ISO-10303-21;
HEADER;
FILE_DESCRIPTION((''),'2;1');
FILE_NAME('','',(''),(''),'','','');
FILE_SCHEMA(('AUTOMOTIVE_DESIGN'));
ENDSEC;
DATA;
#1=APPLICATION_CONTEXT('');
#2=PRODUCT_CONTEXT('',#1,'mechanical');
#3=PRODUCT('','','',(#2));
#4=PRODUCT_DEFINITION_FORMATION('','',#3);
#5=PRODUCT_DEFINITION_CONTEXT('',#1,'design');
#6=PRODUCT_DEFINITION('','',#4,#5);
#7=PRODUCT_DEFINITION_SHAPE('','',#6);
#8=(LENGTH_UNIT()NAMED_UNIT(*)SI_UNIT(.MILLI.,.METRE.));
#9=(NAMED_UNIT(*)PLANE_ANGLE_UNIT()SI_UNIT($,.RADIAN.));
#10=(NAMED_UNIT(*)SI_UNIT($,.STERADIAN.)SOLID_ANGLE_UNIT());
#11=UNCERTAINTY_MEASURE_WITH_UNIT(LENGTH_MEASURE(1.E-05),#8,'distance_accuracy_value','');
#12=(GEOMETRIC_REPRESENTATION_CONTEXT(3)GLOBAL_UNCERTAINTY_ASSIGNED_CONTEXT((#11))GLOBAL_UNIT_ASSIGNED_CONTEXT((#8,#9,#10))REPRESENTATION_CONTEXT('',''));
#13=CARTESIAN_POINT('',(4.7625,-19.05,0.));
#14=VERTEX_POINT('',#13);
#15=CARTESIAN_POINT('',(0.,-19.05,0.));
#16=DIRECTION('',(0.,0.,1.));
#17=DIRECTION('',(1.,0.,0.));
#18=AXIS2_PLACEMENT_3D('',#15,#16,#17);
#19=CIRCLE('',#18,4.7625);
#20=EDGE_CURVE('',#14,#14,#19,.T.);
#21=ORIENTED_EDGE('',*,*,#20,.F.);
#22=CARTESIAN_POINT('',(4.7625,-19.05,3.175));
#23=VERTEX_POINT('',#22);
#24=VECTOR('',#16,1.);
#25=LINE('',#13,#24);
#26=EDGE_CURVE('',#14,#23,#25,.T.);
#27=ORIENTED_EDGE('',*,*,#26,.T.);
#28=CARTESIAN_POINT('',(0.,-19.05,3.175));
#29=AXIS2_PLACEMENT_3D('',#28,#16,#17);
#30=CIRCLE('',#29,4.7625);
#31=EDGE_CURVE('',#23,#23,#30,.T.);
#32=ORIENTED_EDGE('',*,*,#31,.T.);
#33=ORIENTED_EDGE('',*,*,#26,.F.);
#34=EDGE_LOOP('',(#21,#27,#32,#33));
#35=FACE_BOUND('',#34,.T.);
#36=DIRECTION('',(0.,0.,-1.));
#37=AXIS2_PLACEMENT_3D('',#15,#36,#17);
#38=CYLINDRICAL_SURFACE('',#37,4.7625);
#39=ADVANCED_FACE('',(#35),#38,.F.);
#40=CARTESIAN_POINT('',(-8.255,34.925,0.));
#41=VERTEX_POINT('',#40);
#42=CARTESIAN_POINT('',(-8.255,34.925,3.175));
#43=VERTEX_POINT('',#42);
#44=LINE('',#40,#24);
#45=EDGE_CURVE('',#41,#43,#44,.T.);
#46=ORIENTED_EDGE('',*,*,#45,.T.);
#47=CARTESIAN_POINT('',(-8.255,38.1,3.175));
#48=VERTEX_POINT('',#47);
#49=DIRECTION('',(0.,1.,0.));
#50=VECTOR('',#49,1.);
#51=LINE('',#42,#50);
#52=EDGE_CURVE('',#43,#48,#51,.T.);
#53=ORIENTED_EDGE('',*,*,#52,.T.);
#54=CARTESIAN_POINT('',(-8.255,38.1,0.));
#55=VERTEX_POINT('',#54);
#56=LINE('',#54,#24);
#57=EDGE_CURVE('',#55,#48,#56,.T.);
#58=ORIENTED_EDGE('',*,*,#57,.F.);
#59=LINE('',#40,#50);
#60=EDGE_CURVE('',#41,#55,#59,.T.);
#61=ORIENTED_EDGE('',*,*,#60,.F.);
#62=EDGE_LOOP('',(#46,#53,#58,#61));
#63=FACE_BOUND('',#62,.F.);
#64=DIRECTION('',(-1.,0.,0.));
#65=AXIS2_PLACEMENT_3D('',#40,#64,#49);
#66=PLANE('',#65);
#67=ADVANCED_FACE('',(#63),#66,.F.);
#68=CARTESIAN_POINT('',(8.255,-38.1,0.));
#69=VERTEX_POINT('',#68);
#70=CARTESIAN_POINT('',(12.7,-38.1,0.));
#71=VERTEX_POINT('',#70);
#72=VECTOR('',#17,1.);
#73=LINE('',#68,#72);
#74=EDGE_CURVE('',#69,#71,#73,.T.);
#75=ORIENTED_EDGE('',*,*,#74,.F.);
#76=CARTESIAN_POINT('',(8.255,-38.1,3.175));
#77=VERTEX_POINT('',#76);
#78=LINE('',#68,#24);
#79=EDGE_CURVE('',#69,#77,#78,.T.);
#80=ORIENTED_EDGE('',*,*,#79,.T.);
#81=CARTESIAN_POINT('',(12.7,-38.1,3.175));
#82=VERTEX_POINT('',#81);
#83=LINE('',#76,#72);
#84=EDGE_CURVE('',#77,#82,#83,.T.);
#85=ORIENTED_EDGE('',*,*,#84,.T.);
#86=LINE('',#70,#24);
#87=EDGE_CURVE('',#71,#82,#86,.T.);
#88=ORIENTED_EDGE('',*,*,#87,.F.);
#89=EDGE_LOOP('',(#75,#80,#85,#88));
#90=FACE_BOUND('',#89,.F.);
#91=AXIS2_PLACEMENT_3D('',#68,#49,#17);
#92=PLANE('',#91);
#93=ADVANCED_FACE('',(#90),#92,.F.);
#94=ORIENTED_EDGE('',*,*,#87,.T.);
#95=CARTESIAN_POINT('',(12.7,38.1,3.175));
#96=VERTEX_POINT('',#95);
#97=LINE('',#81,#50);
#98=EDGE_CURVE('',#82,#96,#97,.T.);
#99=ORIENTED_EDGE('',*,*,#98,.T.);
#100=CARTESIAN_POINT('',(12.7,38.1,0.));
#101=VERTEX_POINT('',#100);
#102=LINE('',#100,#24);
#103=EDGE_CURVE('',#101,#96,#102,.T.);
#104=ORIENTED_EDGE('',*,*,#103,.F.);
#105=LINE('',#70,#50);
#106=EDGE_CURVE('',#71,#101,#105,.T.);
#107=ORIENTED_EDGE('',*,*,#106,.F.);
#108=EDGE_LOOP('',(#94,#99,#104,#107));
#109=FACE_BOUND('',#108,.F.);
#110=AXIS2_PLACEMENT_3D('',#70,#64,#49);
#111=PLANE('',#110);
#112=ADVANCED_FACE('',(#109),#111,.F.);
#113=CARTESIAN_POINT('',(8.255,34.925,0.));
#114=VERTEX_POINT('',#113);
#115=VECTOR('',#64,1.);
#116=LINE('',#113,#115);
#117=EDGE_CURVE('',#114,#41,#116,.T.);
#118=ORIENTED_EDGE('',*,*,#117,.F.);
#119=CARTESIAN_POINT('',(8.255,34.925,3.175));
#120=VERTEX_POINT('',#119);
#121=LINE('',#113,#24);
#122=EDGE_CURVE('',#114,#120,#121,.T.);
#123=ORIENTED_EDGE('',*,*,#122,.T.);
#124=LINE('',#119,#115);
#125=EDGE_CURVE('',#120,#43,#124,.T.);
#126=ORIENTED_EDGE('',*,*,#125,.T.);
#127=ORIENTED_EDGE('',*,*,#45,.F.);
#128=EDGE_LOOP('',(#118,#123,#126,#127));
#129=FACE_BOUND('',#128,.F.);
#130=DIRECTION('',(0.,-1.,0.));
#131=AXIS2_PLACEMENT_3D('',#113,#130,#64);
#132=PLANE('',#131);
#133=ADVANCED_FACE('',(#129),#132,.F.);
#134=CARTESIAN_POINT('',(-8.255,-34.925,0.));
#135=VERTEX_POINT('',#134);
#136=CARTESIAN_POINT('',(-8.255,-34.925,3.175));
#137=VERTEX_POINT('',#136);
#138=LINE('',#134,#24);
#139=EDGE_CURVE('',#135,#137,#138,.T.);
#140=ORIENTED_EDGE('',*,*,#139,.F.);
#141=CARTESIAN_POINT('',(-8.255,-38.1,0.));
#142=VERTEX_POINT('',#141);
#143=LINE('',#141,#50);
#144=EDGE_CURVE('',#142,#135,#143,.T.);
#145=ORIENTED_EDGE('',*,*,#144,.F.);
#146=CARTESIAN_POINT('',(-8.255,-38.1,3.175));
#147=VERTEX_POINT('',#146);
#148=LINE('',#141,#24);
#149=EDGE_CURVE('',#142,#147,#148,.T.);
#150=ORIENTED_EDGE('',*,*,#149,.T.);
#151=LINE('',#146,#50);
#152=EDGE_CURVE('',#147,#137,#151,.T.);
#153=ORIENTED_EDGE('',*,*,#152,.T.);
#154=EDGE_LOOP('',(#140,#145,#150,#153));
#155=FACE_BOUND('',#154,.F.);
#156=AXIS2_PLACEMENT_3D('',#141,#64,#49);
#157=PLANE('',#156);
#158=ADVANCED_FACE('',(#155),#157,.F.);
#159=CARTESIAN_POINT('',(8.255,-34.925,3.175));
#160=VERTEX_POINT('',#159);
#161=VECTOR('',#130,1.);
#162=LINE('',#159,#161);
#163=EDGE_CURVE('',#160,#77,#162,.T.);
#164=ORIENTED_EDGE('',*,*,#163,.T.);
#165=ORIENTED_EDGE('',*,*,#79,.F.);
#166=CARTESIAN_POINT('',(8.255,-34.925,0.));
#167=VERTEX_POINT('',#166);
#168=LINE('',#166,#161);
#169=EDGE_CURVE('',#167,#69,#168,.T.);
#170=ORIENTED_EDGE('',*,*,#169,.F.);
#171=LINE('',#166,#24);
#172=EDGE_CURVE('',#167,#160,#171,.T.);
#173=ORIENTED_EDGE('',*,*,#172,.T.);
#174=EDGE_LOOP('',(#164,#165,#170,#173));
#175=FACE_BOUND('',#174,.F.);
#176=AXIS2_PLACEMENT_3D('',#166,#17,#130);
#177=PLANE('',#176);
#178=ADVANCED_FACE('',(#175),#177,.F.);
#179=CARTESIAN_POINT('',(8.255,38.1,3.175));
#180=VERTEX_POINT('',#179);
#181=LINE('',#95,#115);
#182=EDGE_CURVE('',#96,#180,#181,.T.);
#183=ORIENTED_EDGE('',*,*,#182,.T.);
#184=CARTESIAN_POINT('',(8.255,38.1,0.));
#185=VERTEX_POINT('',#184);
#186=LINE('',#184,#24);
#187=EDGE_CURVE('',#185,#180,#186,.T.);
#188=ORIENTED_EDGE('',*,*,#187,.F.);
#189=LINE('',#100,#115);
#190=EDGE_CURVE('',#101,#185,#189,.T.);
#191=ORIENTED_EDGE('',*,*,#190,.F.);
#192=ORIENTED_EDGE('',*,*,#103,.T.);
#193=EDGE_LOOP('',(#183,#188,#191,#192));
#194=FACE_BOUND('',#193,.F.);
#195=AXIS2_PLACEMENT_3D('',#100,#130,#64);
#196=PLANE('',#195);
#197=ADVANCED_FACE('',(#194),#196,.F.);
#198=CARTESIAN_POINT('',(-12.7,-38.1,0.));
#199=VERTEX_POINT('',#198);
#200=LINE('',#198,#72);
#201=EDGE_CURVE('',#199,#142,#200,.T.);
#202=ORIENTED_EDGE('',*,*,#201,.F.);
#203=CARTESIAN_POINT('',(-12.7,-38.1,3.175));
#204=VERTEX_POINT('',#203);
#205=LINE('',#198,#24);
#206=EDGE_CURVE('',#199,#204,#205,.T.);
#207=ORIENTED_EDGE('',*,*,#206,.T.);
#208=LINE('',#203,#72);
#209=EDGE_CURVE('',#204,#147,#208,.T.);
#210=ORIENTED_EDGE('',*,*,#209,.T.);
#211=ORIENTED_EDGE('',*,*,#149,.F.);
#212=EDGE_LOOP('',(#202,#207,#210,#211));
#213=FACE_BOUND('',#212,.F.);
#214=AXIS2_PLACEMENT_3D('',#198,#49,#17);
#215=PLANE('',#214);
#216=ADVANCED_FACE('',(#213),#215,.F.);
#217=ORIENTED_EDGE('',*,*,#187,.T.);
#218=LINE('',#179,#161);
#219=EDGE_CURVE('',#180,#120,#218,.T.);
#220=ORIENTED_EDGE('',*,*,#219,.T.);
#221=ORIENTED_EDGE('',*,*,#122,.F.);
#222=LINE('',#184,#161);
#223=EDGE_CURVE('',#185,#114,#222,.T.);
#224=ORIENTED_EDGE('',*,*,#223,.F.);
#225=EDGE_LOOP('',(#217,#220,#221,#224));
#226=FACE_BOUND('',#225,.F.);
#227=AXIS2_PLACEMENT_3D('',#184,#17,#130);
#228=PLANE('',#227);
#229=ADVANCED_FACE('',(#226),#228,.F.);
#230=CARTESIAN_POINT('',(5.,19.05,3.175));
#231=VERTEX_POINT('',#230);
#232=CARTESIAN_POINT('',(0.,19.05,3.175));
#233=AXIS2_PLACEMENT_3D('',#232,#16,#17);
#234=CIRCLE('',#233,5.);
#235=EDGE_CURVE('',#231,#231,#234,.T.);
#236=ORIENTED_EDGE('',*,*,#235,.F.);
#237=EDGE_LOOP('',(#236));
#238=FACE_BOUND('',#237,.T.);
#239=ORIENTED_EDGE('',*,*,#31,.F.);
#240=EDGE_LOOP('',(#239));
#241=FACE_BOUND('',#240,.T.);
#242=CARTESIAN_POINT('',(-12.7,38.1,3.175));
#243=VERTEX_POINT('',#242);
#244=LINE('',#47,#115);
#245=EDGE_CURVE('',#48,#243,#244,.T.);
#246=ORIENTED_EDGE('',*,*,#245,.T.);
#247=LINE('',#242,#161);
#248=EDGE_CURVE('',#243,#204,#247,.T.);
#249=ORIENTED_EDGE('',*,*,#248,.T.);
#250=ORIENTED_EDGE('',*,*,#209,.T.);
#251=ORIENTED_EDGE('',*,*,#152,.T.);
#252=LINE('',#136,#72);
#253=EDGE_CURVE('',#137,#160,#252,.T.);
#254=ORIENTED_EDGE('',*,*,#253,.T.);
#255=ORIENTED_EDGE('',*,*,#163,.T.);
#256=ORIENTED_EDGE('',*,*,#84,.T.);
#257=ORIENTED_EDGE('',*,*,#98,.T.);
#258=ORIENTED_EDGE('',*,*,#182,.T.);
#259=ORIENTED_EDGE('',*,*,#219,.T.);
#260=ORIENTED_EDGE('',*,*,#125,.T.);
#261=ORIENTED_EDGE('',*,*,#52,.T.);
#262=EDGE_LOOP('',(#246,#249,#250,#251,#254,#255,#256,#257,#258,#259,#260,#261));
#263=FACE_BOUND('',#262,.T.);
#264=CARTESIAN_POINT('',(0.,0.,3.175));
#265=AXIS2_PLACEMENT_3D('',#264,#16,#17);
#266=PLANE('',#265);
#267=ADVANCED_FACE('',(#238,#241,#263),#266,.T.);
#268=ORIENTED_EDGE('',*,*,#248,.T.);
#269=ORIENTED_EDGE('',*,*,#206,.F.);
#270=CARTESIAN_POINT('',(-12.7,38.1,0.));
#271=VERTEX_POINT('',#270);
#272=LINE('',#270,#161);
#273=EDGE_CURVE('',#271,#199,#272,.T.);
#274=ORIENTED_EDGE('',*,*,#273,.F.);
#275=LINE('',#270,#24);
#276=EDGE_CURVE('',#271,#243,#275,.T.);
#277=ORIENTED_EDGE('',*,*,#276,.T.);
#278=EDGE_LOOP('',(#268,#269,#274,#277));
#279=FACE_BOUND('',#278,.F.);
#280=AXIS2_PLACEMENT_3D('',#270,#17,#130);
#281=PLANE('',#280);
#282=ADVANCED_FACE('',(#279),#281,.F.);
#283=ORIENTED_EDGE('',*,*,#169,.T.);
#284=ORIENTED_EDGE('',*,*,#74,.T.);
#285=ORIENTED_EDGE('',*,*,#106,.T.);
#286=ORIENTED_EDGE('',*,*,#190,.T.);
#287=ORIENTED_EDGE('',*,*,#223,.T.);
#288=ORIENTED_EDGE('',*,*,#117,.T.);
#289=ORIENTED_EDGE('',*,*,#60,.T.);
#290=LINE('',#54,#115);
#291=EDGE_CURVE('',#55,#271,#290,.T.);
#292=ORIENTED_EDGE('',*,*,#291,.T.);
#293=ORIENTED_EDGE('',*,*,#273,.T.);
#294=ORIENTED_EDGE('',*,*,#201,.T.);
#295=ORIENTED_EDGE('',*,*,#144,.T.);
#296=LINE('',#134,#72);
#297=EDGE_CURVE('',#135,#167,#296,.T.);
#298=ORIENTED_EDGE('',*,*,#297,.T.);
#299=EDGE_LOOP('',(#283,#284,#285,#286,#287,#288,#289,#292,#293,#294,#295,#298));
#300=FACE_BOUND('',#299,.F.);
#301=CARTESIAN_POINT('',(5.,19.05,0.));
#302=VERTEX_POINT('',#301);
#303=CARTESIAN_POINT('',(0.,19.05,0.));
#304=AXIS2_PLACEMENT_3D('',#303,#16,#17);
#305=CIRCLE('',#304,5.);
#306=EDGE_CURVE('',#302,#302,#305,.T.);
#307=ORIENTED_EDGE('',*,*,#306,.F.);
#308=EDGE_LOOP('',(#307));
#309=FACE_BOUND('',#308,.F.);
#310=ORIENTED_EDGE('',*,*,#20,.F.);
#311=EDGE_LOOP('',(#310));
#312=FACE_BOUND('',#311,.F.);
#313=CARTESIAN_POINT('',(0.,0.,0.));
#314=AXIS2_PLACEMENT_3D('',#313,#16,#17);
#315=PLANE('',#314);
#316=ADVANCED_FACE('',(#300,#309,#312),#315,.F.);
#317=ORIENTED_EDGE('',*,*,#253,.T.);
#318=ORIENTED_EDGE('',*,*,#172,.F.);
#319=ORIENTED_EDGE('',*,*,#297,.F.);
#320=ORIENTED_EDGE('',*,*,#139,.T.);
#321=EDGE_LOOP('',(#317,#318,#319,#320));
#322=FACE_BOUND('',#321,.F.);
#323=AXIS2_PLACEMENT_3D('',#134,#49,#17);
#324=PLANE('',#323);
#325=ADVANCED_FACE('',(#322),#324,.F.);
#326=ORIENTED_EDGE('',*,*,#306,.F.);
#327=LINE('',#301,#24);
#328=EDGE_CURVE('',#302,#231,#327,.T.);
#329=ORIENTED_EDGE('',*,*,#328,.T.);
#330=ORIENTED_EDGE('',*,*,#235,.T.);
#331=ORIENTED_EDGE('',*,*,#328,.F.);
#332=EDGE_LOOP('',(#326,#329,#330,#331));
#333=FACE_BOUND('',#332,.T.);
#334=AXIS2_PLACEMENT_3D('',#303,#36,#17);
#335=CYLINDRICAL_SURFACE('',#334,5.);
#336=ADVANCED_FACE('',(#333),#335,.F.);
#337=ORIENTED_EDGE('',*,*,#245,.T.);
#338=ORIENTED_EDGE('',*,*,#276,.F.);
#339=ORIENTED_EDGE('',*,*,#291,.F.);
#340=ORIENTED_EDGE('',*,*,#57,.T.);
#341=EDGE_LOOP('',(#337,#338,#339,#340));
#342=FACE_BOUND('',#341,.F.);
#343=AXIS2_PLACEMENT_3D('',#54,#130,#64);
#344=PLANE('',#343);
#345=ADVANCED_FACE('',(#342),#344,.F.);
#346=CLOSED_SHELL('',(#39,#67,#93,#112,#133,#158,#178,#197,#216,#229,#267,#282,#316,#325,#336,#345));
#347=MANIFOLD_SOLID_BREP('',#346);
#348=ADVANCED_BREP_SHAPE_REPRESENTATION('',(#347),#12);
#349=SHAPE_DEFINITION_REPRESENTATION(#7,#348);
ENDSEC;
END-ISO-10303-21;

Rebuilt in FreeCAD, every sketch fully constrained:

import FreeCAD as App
import Part
import Sketcher

V = App.Vector
Q = App.Units.Quantity


def add_polygon(sketch, points):
    """Adds a closed chain of lines whose ends are joined by coincident constraints."""
    first, n = sketch.GeometryCount, len(points)
    for a, b in zip(points, points[1:] + points[:1]):
        sketch.addGeometry(Part.LineSegment(App.Vector(*a, 0), App.Vector(*b, 0)), False)
    for i in range(n):
        sketch.addConstraint(Sketcher.Constraint("Coincident", first + i, 2, first + (i + 1) % n, 1))

doc = App.newDocument("Part")
body = doc.addObject("PartDesign::Body", "Body")

# Sketch on XY plane
sketch1 = body.newObject("Sketcher::SketchObject", "Sketch")
sketch1.AttachmentSupport = (doc.getObject("XY_Plane"), [""])
sketch1.MapMode = "FlatFace"
add_polygon(sketch1, [(12.7, -38.1), (12.7, 38.1), (8.3, 38.1), (8.3, 34.9), (-8.3, 34.9), (-8.3, 38.1), (-12.7, 38.1), (-12.7, -38.1), (-8.3, -38.1), (-8.3, -34.9), (8.3, -34.9), (8.3, -38.1)])  # lines 0-11
sketch1.addGeometry(Part.Circle(V(0, -19.1, 0), V(0, 0, 1), 4.8), False)  # 12
sketch1.addGeometry(Part.Circle(V(0, 19.1, 0), V(0, 0, 1), 5), False)  # 13
sketch1.addConstraint([
    Sketcher.Constraint("Vertical", 0),
    Sketcher.Constraint("Horizontal", 1),
    Sketcher.Constraint("Vertical", 2),
    Sketcher.Constraint("Horizontal", 3),
    Sketcher.Constraint("Vertical", 4),
    Sketcher.Constraint("Horizontal", 5),
    Sketcher.Constraint("Vertical", 6),
    Sketcher.Constraint("Horizontal", 7),
    Sketcher.Constraint("Vertical", 8),
    Sketcher.Constraint("Horizontal", 9),
    Sketcher.Constraint("Vertical", 10),
    Sketcher.Constraint("Horizontal", 11),
    Sketcher.Constraint("Symmetric", 12, 3, 13, 3, -1, 1),
    Sketcher.Constraint("Symmetric", 0, 2, 6, 2, -1, 1),
    Sketcher.Constraint("Symmetric", 2, 2, 8, 2, -1, 1),
    Sketcher.Constraint("Symmetric", 4, 2, 10, 2, -1, 1),
    Sketcher.Constraint("Symmetric", 1, 2, 4, 2, -2),
    Sketcher.Constraint("PointOnObject", 12, 3, -2),
    Sketcher.Constraint("DistanceY", 0, 1, 0, 2, Q("3 in")),
    Sketcher.Constraint("Diameter", 12, Q("0.375 in")),
    Sketcher.Constraint("DistanceX", 3, 2, 3, 1, Q("0.65 in")),
    Sketcher.Constraint("DistanceX", -1, 1, 0, 2, Q("0.5 in")),
    Sketcher.Constraint("DistanceY", 12, 3, 13, 3, Q("1.5 in")),
    Sketcher.Constraint("Diameter", 13, Q("10 mm")),
    Sketcher.Constraint("DistanceY", 2, 2, 2, 1, Q("0.125 in")),
])
pad1 = body.newObject("PartDesign::Pad", "Pad")
pad1.Profile = sketch1
pad1.Length = Q("0.125 in")

doc.recompute()
